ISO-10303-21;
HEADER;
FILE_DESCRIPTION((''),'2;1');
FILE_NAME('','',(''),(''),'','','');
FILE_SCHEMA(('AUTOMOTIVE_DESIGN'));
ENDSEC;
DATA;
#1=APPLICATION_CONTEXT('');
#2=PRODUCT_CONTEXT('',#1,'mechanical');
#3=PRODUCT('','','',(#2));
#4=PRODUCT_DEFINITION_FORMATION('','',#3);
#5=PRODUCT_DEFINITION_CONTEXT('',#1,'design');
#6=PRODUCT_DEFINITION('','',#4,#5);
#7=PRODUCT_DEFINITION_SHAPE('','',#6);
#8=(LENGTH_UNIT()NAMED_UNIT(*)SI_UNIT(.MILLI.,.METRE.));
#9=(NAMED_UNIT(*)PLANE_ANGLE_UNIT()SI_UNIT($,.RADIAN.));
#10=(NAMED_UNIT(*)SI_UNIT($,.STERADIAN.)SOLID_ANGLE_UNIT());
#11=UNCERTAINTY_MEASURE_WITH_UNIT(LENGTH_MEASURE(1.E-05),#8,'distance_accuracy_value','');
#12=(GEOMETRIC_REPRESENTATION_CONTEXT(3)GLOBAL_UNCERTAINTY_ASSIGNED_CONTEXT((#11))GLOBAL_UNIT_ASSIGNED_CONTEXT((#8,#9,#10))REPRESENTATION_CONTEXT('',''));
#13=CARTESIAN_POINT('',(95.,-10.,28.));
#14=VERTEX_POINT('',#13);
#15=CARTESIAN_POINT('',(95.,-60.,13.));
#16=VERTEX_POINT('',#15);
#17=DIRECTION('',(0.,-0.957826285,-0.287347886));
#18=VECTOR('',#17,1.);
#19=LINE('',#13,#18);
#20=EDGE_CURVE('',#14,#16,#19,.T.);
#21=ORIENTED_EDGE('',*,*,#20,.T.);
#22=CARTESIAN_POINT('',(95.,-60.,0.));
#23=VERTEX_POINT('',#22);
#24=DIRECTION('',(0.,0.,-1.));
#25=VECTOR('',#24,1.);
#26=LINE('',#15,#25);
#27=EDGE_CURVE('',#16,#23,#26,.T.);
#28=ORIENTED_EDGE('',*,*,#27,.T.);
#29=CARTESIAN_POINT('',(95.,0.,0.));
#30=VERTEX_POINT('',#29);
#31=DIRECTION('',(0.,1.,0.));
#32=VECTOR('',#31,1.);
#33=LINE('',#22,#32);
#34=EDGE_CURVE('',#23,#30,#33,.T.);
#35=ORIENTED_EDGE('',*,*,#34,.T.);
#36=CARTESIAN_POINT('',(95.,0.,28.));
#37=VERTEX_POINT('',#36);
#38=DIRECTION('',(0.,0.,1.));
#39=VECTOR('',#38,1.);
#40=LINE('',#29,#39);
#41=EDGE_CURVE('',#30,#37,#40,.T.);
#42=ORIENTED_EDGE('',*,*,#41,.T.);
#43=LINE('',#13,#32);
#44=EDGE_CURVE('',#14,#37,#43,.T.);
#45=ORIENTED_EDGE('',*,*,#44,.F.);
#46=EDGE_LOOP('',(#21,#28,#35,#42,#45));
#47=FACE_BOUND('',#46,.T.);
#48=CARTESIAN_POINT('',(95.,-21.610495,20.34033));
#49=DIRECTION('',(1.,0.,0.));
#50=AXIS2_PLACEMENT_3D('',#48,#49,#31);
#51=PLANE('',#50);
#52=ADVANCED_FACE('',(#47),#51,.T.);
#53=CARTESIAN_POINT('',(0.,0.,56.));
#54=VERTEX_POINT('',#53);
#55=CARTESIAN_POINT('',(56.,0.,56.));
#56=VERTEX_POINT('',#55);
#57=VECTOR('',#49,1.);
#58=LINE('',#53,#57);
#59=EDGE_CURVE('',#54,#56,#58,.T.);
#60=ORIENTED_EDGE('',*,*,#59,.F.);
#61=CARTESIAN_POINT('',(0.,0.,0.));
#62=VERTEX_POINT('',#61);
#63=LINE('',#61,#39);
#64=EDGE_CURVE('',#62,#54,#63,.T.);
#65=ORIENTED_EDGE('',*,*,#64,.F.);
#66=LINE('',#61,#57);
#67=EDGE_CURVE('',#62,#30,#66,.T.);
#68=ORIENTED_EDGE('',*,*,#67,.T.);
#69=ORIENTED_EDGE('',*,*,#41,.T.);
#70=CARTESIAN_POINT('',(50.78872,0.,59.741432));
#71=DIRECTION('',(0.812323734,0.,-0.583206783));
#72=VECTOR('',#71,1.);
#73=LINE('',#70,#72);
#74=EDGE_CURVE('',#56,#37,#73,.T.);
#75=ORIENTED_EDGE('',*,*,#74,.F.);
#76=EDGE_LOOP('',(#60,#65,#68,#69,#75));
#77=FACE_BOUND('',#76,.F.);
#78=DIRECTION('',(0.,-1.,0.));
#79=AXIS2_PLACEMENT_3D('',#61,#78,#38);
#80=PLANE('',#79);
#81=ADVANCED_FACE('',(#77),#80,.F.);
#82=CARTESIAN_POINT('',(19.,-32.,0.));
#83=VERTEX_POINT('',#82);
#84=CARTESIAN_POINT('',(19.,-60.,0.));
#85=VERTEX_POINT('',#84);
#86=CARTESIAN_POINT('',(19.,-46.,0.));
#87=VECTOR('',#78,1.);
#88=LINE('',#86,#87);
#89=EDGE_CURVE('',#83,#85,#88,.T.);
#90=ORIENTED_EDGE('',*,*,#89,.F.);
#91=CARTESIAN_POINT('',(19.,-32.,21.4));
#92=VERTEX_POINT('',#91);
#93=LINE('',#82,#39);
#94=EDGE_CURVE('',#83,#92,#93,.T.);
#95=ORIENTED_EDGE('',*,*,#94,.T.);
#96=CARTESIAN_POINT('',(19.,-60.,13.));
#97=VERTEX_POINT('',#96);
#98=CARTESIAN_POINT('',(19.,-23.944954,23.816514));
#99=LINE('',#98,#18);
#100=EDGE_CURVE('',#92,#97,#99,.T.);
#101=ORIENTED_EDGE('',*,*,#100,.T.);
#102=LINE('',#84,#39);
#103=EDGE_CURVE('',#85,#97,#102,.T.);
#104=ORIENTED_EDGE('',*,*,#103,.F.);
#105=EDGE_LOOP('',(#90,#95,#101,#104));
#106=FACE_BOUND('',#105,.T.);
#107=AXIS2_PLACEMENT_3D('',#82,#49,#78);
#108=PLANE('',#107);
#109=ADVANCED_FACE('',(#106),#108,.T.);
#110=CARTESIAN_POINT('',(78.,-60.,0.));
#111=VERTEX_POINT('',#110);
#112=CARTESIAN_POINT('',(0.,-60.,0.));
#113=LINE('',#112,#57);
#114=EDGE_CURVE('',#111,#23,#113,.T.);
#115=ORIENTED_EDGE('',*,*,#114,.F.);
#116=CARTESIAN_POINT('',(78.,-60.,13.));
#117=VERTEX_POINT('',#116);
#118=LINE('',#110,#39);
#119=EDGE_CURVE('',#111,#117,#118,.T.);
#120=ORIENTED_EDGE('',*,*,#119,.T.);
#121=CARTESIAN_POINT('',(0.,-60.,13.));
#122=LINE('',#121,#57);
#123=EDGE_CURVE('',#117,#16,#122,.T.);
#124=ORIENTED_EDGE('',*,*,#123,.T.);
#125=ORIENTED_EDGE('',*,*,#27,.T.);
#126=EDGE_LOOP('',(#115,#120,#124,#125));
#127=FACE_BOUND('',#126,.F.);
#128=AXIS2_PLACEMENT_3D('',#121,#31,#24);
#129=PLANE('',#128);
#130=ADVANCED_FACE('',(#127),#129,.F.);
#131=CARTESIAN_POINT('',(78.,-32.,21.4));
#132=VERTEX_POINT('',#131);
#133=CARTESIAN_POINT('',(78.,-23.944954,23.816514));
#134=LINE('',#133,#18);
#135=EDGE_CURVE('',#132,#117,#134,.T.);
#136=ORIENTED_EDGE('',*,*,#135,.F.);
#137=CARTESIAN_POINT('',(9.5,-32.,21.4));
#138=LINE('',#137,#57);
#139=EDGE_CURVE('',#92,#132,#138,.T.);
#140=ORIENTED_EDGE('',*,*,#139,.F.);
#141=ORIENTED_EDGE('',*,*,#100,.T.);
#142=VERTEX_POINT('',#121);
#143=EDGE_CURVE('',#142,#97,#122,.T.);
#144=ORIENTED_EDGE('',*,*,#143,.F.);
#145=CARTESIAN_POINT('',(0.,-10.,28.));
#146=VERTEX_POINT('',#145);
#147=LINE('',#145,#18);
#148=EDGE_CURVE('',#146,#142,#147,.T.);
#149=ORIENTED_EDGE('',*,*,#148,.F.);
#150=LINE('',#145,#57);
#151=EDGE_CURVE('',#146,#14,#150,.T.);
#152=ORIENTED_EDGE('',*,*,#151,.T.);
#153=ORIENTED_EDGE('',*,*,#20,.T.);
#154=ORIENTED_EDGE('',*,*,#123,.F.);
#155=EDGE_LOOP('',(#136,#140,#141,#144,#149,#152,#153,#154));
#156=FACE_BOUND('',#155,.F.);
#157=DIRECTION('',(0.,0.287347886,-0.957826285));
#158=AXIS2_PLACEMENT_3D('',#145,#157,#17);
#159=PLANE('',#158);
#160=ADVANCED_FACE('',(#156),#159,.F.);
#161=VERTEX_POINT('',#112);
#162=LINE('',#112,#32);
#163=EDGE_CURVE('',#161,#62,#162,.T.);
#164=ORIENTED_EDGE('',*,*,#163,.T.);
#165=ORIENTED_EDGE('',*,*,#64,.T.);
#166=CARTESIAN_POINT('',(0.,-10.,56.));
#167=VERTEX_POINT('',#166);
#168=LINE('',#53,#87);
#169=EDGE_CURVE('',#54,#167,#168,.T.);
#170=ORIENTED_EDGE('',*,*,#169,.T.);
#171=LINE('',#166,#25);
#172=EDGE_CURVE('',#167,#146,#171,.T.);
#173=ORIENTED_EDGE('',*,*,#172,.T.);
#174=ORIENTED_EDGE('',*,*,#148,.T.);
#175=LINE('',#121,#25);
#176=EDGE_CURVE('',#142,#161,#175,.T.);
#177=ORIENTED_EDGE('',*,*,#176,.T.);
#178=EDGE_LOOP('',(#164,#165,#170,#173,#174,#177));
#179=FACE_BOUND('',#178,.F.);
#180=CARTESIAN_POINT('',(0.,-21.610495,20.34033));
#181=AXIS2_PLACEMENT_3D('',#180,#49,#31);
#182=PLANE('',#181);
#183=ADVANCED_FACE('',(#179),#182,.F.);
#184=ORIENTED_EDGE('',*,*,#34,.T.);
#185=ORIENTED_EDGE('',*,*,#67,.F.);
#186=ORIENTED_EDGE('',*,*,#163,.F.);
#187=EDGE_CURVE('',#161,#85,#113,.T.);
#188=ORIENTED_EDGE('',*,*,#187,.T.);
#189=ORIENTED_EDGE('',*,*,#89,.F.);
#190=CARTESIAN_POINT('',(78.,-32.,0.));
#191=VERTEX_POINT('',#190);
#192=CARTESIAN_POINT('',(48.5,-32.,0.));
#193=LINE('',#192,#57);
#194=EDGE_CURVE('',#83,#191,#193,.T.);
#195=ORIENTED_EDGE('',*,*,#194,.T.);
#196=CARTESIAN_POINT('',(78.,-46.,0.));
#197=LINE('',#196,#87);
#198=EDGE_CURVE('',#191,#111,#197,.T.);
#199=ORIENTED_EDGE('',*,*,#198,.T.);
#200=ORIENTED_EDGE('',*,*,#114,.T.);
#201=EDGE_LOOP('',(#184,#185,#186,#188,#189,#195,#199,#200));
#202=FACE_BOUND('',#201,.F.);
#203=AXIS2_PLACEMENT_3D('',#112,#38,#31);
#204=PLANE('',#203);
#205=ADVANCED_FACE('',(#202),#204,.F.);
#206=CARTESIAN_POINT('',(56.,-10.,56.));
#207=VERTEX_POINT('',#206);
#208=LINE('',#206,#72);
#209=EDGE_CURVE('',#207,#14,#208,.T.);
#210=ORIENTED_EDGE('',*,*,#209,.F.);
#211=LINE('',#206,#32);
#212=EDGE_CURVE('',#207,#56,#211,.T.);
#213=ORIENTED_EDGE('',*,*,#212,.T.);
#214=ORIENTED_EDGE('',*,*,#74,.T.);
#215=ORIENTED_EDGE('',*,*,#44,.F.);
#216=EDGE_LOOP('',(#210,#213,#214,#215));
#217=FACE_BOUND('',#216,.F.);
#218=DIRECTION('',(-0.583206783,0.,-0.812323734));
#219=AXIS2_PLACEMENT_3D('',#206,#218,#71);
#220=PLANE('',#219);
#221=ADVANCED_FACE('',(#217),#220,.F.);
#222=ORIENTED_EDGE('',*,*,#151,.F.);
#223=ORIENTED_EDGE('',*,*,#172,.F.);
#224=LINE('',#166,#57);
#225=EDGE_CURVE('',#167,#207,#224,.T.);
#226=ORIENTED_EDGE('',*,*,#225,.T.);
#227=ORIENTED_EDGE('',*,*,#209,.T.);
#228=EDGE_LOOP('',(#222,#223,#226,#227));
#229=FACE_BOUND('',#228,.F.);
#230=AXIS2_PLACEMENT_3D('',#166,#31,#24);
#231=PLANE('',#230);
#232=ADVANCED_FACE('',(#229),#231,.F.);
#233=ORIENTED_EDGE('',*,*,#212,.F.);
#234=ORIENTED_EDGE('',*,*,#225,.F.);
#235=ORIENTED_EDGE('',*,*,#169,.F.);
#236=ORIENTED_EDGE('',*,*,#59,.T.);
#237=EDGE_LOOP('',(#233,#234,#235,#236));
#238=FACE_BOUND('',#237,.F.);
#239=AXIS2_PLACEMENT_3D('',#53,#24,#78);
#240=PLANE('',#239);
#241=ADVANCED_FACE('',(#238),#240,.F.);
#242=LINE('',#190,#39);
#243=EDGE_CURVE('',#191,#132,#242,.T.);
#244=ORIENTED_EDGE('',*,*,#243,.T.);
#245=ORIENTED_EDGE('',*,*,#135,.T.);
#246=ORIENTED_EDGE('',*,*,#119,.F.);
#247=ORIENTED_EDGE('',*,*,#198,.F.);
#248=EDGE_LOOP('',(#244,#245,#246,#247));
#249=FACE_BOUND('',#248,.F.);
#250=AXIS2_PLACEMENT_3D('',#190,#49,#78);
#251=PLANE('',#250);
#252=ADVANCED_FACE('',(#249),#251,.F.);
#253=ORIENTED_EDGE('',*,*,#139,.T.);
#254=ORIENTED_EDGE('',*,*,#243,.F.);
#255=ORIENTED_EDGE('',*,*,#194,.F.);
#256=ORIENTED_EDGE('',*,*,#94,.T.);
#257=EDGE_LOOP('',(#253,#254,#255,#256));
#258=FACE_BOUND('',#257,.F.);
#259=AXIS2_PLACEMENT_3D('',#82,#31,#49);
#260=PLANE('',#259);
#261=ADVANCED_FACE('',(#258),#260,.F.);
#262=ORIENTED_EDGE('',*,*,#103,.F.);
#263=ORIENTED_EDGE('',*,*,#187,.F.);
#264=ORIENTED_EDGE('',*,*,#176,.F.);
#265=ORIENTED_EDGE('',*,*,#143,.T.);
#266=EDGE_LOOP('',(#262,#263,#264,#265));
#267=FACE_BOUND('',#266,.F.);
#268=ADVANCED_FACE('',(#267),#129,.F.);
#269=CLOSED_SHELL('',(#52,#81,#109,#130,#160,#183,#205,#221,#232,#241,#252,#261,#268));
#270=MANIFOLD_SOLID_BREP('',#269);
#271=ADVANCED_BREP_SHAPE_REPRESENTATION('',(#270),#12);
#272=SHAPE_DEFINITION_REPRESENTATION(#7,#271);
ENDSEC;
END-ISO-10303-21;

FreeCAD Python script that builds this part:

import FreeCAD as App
import Part
import Sketcher

V = App.Vector

doc = App.newDocument("Part")
body = doc.addObject("PartDesign::Body", "Body")

# Sketch on YZ plane
sketch1 = body.newObject("Sketcher::SketchObject", "Sketch")
sketch1.AttachmentSupport = (doc.getObject("YZ_Plane"), [""])
sketch1.MapMode = "FlatFace"
sketch1.addGeometry([
    Part.LineSegment(V(-60, 0, 0), V(0, 0, 0)),  # 0
    Part.LineSegment(V(0, 0, 0), V(0, 56, 0)),  # 1
    Part.LineSegment(V(0, 56, 0), V(-10, 56, 0)),  # 2
    Part.LineSegment(V(-10, 56, 0), V(-10, 28, 0)),  # 3
    Part.LineSegment(V(-10, 28, 0), V(-60, 13, 0)),  # 4
    Part.LineSegment(V(-60, 13, 0), V(-60, 0, 0)),  # 5
], False)
sketch1.addConstraint([
    Sketcher.Constraint("Coincident", 0, 2, 1, 1),
    Sketcher.Constraint("Coincident", 1, 2, 2, 1),
    Sketcher.Constraint("Coincident", 2, 2, 3, 1),
    Sketcher.Constraint("Coincident", 3, 2, 4, 1),
    Sketcher.Constraint("Coincident", 4, 2, 5, 1),
    Sketcher.Constraint("Coincident", 5, 2, 0, 1),
    Sketcher.Constraint("Horizontal", 0),
    Sketcher.Constraint("Vertical", 1),
    Sketcher.Constraint("Horizontal", 2),
    Sketcher.Constraint("Vertical", 3),
    Sketcher.Constraint("Vertical", 5),
    Sketcher.Constraint("Coincident", 0, 2, -1, 1),
    Sketcher.Constraint("DistanceX", 0, 1, 0, 2, 60.0),
    Sketcher.Constraint("DistanceX", 2, 2, 2, 1, 10.0),
    Sketcher.Constraint("DistanceY", 1, 1, 1, 2, 56.0),
    Sketcher.Constraint("DistanceY", 3, 2, 3, 1, 28.0),
    Sketcher.Constraint("DistanceY", 5, 2, 5, 1, 13.0),
])
pad1 = body.newObject("PartDesign::Pad", "Pad")
pad1.Profile = sketch1
pad1.Length = 95

# Sketch on XZ plane
sketch2 = body.newObject("Sketcher::SketchObject", "Sketch001")
sketch2.AttachmentSupport = (doc.getObject("XZ_Plane"), [""])
sketch2.MapMode = "FlatFace"
sketch2.AttachmentOffset = App.Placement(V(0, 0, 10), App.Rotation())
sketch2.addGeometry([
    Part.LineSegment(V(95, 56, 0), V(56, 56, 0)),
    Part.LineSegment(V(56, 56, 0), V(95, 28, 0)),
    Part.LineSegment(V(95, 28, 0), V(95, 56, 0)),
], False)
sketch2.addConstraint([
    Sketcher.Constraint("Coincident", 0, 2, 1, 1),
    Sketcher.Constraint("Coincident", 1, 2, 2, 1),
    Sketcher.Constraint("Coincident", 2, 2, 0, 1),
    Sketcher.Constraint("Horizontal", 0),
    Sketcher.Constraint("Vertical", 2),
    Sketcher.Constraint("DistanceX", 0, 2, 0, 1, 39.0),
    Sketcher.Constraint("DistanceY", 2, 1, 2, 2, 28.0),
    Sketcher.Constraint("DistanceX", -1, 1, 0, 2, 56.0),
    Sketcher.Constraint("DistanceY", -1, 1, 0, 2, 56.0),
])
pocket1 = body.newObject("PartDesign::Pocket", "Pocket")
pocket1.Profile = sketch2
pocket1.Type = "ThroughAll"

# Sketch on XY plane
sketch3 = body.newObject("Sketcher::SketchObject", "Sketch002")
sketch3.AttachmentSupport = (doc.getObject("XY_Plane"), [""])
sketch3.MapMode = "FlatFace"
sketch3.addGeometry([
    Part.LineSegment(V(19, -60, 0), V(19, -32, 0)),
    Part.LineSegment(V(19, -32, 0), V(78, -32, 0)),
    Part.LineSegment(V(78, -32, 0), V(78, -60, 0)),
    Part.LineSegment(V(78, -60, 0), V(19, -60, 0)),
], False)
sketch3.addConstraint([
    Sketcher.Constraint("Coincident", 0, 2, 1, 1),
    Sketcher.Constraint("Coincident", 1, 2, 2, 1),
    Sketcher.Constraint("Coincident", 2, 2, 3, 1),
    Sketcher.Constraint("Coincident", 3, 2, 0, 1),
    Sketcher.Constraint("Vertical", 0),
    Sketcher.Constraint("Horizontal", 1),
    Sketcher.Constraint("Vertical", 2),
    Sketcher.Constraint("Horizontal", 3),
    Sketcher.Constraint("DistanceX", 1, 1, 1, 2, 59.0),
    Sketcher.Constraint("DistanceY", 0, 1, 0, 2, 28.0),
    Sketcher.Constraint("DistanceX", -1, 1, 0, 2, 19.0),
    Sketcher.Constraint("DistanceY", 0, 2, -1, 1, 32.0),
])
pocket2 = body.newObject("PartDesign::Pocket", "Pocket001")
pocket2.Profile = sketch3
pocket2.Length = 41.8
pocket2.Reversed = True

doc.recompute()
